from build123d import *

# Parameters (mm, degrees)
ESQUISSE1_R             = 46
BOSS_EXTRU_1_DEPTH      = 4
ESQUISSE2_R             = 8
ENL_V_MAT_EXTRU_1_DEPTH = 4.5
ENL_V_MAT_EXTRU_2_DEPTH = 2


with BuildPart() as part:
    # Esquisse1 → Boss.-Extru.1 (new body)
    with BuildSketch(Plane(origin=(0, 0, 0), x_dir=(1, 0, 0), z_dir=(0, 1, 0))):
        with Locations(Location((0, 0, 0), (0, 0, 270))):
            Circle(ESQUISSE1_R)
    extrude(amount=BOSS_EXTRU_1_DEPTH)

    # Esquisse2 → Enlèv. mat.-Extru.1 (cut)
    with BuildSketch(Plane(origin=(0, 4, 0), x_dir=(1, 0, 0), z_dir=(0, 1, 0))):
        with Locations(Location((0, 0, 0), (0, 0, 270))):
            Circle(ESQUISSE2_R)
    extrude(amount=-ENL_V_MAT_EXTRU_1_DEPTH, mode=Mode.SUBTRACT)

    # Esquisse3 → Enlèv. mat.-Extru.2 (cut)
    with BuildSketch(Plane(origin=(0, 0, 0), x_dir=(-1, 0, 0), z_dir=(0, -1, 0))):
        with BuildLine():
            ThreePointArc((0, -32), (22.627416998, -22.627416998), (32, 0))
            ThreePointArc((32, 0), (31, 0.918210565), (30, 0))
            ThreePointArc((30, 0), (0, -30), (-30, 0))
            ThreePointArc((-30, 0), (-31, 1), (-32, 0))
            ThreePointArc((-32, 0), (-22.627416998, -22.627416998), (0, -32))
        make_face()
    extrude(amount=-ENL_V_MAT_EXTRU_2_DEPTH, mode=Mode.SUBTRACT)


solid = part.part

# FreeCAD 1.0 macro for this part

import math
import FreeCAD as App
import Part
import Sketcher

V = App.Vector
Q = App.Units.Quantity

doc = App.newDocument("Part")
body = doc.addObject("PartDesign::Body", "Body")

# Sketch on XZ plane
sketch1 = doc.addObject("Sketcher::SketchObject", "Sketch")
body.addObject(sketch1)
sketch1.AttachmentSupport = (doc.XZ_Plane, [""])
sketch1.MapMode = "FlatFace"
sketch1.addGeometry(Part.Circle(V(0, 0, 0), V(0, 0, 1), 46), False)
sketch1.addConstraint([
    Sketcher.Constraint("Coincident", 0, 3, -1, 1),
    Sketcher.Constraint("Diameter", 0, Q("92 mm")),
])
pad1 = doc.addObject("PartDesign::Pad", "Pad")
body.addObject(pad1)
pad1.Profile = sketch1
pad1.Length = 4
pad1.Reversed = True

# Sketch on XZ plane
sketch2 = doc.addObject("Sketcher::SketchObject", "Sketch001")
body.addObject(sketch2)
sketch2.AttachmentSupport = (doc.XZ_Plane, [""])
sketch2.MapMode = "FlatFace"
sketch2.AttachmentOffset = App.Placement(V(0, 0, -4), App.Rotation())
sketch2.addGeometry(Part.Circle(V(0, 0, 0), V(0, 0, 1), 8), False)
sketch2.addConstraint([
    Sketcher.Constraint("Coincident", 0, 3, -1, 1),
    Sketcher.Constraint("Diameter", 0, Q("16 mm")),
])
pocket1 = doc.addObject("PartDesign::Pocket", "Pocket")
body.addObject(pocket1)
pocket1.Profile = sketch2
pocket1.Length = 4.5
pocket1.Reversed = True

# Sketch on XZ plane
sketch3 = doc.addObject("Sketcher::SketchObject", "Sketch002")
body.addObject(sketch3)
sketch3.AttachmentSupport = (doc.XZ_Plane, [""])
sketch3.MapMode = "FlatFace"
sketch3.addGeometry([
    Part.ArcOfCircle(Part.Circle(V(0, 0, 0), V(0, 0, 1), 32), math.radians(90), math.radians(180)),  # 0
    Part.ArcOfCircle(Part.Circle(V(-31, 0.1, 0), V(0, 0, 1), 1), math.radians(-175), math.radians(-5)),  # 1
    Part.ArcOfCircle(Part.Circle(V(0, 0, 0), V(0, 0, 1), 30), math.radians(0), math.radians(180)),  # 2
    Part.ArcOfCircle(Part.Circle(V(31, 0, 0), V(0, 0, 1), 1), math.radians(180), math.radians(360)),  # 3
    Part.ArcOfCircle(Part.Circle(V(0, 0, 0), V(0, 0, 1), 32), math.radians(0), math.radians(90)),  # 4
], False)
sketch3.addConstraint([
    Sketcher.Constraint("Coincident", 0, 2, 1, 1),
    Sketcher.Constraint("Coincident", 1, 2, 2, 2),
    Sketcher.Constraint("Tangent", 2, 1, 3, 1),
    Sketcher.Constraint("Tangent", 3, 2, 4, 1),
    Sketcher.Constraint("Tangent", 4, 2, 0, 1),
    Sketcher.Constraint("Coincident", 0, 3, -1, 1),
    Sketcher.Constraint("Coincident", 2, 3, -1, 1),
    Sketcher.Constraint("Equal", 0, 4),
    Sketcher.Constraint("PointOnObject", 3, 3, -1),
    Sketcher.Constraint("PointOnObject", 0, 2, -1),
    Sketcher.Constraint("PointOnObject", 1, 2, -1),
    Sketcher.Constraint("PointOnObject", 4, 2, -2),
    Sketcher.Constraint("Radius", 0, Q("32 mm")),
    Sketcher.Constraint("Radius", 2, Q("30 mm")),
    Sketcher.Constraint("Radius", 1, Q("1.003643 mm")),
])
pocket2 = doc.addObject("PartDesign::Pocket", "Pocket001")
body.addObject(pocket2)
pocket2.Profile = sketch3
pocket2.Length = 2

doc.recompute()
